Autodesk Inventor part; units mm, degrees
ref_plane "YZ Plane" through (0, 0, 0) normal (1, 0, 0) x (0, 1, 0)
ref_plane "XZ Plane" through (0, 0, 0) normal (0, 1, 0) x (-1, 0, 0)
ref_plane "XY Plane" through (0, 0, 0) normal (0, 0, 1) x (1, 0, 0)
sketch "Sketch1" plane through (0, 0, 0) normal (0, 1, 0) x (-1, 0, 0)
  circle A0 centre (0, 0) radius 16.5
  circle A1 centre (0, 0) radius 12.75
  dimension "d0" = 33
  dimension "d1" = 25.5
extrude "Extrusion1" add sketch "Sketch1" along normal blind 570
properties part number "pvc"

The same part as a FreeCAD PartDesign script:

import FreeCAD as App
import Part
import Sketcher
from FreeCAD import Vector

doc = App.newDocument("Part")
params = doc.addObject("Spreadsheet::Sheet", "Params")
for row, (alias, value) in enumerate([
    ("sketch1_diameter", "33 mm"),
    ("sketch1_diameter2", "25.5 mm"),
    ("pad1_length", "570 mm"),
], start=1):
    params.set(f"A{row}", alias)
    params.set(f"B{row}", "=" + value)
    params.setAlias(f"B{row}", alias)

body = doc.addObject("PartDesign::Body", "Body")

# Sketch on XZ plane
sketch1 = body.newObject("Sketcher::SketchObject", "Sketch")
sketch1.AttachmentSupport = (doc.getObject("XZ_Plane"), [""])
sketch1.MapMode = "FlatFace"
sketch1.addGeometry([
    Part.Circle(Vector(0, 0, 0), Vector(0, 0, 1), 16),
    Part.Circle(Vector(0, 0, 0), Vector(0, 0, 1), 13),
], False)
sketch1.addConstraint([
    Sketcher.Constraint("Coincident", 0, 3, -1, 1),
    Sketcher.Constraint("Coincident", 1, 3, -1, 1),
    Sketcher.Constraint("Diameter", 0, 33.0),
    Sketcher.Constraint("Diameter", 1, 25.5),
])
sketch1.setExpression("Constraints[2]", "Params.sketch1_diameter")
sketch1.setExpression("Constraints[3]", "Params.sketch1_diameter2")
pad1 = body.newObject("PartDesign::Pad", "Pad")
pad1.Profile = sketch1
pad1.setExpression("Length", "Params.pad1_length")
pad1.Reversed = True

doc.recompute()
